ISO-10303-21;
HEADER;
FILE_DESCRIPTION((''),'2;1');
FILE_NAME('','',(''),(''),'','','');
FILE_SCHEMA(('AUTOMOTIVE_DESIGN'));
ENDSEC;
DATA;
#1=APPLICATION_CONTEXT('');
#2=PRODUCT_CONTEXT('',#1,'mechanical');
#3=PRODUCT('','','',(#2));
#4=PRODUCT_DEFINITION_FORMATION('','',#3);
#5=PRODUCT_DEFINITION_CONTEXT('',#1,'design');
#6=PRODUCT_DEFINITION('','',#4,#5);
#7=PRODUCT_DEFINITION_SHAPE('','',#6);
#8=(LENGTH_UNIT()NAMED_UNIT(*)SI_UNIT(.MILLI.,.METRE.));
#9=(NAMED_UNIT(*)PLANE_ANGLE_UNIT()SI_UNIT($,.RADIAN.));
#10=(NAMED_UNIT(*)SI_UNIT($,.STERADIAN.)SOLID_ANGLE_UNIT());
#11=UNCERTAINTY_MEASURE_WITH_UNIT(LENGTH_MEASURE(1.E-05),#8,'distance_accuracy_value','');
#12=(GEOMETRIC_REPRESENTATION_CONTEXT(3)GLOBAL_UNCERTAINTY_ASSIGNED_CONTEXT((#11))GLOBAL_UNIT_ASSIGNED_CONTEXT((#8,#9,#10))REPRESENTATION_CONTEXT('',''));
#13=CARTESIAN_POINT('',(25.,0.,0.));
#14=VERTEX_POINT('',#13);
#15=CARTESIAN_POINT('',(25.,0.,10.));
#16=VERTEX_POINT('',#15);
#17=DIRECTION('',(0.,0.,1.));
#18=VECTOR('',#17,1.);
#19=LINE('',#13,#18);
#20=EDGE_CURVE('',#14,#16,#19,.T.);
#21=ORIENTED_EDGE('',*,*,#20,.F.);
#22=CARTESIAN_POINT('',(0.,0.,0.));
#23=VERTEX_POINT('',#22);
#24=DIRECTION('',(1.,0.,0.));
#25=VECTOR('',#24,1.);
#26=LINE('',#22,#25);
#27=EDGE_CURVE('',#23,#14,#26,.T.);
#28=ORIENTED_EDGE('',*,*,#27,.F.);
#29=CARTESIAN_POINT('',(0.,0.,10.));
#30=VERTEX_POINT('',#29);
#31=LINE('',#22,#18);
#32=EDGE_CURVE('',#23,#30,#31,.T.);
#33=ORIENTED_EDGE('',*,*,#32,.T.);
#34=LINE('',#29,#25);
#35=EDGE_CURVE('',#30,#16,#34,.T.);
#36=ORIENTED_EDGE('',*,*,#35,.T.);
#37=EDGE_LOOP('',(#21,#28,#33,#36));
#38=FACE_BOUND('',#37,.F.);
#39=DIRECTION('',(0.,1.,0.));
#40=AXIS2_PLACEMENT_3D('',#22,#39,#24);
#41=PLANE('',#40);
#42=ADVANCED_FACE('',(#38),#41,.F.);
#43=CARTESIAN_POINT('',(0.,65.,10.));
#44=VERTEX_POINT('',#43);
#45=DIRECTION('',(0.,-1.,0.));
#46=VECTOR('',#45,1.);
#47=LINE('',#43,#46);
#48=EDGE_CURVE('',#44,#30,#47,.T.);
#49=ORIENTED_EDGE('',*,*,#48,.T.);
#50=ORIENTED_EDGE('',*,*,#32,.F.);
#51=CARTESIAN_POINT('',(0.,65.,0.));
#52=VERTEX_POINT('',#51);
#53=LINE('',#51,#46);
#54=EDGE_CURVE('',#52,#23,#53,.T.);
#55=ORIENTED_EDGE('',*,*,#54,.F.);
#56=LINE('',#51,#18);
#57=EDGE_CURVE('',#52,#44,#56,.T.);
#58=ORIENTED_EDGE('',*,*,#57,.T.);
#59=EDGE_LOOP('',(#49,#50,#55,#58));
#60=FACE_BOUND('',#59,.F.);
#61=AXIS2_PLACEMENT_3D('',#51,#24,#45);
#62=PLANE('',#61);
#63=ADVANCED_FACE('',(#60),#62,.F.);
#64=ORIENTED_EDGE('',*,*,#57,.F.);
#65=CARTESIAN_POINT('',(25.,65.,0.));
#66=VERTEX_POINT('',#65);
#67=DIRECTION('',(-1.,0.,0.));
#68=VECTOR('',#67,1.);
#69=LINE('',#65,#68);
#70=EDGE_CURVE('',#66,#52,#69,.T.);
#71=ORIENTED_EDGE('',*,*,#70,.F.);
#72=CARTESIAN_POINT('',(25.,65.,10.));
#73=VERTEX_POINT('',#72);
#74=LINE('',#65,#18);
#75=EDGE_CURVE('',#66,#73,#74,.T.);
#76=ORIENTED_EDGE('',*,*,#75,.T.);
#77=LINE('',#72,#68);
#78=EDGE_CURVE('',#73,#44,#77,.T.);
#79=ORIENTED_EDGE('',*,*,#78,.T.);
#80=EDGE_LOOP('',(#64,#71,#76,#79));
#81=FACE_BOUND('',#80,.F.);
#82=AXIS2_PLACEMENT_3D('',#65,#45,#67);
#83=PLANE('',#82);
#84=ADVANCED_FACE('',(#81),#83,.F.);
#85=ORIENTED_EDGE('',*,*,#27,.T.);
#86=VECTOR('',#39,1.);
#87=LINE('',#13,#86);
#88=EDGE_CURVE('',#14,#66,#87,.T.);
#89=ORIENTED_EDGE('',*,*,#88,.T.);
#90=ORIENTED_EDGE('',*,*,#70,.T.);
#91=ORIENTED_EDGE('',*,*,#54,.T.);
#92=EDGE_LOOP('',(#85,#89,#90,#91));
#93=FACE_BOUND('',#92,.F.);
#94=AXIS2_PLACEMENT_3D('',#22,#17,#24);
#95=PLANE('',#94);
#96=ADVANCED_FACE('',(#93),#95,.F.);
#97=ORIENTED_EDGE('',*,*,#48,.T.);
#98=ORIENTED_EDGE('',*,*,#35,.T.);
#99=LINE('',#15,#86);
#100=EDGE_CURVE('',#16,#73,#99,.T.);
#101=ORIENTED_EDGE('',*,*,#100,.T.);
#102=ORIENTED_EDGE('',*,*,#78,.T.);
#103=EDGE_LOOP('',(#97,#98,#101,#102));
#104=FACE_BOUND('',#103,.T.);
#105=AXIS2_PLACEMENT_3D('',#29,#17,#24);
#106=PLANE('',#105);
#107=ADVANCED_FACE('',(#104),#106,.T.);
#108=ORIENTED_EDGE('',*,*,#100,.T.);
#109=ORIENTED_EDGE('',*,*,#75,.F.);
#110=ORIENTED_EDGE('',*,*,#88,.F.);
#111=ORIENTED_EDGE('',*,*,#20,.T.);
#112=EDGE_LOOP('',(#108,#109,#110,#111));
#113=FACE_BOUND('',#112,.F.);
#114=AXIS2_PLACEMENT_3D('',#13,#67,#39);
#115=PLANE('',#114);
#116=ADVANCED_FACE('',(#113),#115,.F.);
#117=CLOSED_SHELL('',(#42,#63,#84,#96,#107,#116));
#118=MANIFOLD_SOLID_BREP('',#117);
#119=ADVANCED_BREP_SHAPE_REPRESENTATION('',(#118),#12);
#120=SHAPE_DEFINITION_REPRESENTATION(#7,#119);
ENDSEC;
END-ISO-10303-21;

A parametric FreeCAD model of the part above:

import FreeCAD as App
import Part
import Sketcher

doc = App.newDocument("Part")
body = doc.addObject("PartDesign::Body", "Body")

# Sketch on XY plane
sketch1 = body.newObject("Sketcher::SketchObject", "Sketch")
sketch1.AttachmentSupport = (doc.getObject("XY_Plane"), [""])
sketch1.MapMode = "FlatFace"
sketch1.addGeometry([
    Part.LineSegment(App.Vector(0, 65, 0), App.Vector(0, 0, 0)),
    Part.LineSegment(App.Vector(0, 0, 0), App.Vector(25, 0, 0)),
    Part.LineSegment(App.Vector(25, 0, 0), App.Vector(25, 65, 0)),
    Part.LineSegment(App.Vector(25, 65, 0), App.Vector(0, 65, 0)),
], False)
sketch1.addConstraint([
    Sketcher.Constraint("Coincident", 0, 2, 1, 1),
    Sketcher.Constraint("Coincident", 1, 2, 2, 1),
    Sketcher.Constraint("Coincident", 2, 2, 3, 1),
    Sketcher.Constraint("Coincident", 3, 2, 0, 1),
    Sketcher.Constraint("Vertical", 0),
    Sketcher.Constraint("Horizontal", 1),
    Sketcher.Constraint("Vertical", 2),
    Sketcher.Constraint("Horizontal", 3),
    Sketcher.Constraint("Coincident", 0, 2, -1, 1),
    Sketcher.Constraint("DistanceX", 1, 1, 1, 2, 25.0),
    Sketcher.Constraint("DistanceY", 0, 2, 0, 1, 65.0),
])
pad1 = body.newObject("PartDesign::Pad", "Pad")
pad1.Profile = sketch1
pad1.Length = 10

doc.recompute()
